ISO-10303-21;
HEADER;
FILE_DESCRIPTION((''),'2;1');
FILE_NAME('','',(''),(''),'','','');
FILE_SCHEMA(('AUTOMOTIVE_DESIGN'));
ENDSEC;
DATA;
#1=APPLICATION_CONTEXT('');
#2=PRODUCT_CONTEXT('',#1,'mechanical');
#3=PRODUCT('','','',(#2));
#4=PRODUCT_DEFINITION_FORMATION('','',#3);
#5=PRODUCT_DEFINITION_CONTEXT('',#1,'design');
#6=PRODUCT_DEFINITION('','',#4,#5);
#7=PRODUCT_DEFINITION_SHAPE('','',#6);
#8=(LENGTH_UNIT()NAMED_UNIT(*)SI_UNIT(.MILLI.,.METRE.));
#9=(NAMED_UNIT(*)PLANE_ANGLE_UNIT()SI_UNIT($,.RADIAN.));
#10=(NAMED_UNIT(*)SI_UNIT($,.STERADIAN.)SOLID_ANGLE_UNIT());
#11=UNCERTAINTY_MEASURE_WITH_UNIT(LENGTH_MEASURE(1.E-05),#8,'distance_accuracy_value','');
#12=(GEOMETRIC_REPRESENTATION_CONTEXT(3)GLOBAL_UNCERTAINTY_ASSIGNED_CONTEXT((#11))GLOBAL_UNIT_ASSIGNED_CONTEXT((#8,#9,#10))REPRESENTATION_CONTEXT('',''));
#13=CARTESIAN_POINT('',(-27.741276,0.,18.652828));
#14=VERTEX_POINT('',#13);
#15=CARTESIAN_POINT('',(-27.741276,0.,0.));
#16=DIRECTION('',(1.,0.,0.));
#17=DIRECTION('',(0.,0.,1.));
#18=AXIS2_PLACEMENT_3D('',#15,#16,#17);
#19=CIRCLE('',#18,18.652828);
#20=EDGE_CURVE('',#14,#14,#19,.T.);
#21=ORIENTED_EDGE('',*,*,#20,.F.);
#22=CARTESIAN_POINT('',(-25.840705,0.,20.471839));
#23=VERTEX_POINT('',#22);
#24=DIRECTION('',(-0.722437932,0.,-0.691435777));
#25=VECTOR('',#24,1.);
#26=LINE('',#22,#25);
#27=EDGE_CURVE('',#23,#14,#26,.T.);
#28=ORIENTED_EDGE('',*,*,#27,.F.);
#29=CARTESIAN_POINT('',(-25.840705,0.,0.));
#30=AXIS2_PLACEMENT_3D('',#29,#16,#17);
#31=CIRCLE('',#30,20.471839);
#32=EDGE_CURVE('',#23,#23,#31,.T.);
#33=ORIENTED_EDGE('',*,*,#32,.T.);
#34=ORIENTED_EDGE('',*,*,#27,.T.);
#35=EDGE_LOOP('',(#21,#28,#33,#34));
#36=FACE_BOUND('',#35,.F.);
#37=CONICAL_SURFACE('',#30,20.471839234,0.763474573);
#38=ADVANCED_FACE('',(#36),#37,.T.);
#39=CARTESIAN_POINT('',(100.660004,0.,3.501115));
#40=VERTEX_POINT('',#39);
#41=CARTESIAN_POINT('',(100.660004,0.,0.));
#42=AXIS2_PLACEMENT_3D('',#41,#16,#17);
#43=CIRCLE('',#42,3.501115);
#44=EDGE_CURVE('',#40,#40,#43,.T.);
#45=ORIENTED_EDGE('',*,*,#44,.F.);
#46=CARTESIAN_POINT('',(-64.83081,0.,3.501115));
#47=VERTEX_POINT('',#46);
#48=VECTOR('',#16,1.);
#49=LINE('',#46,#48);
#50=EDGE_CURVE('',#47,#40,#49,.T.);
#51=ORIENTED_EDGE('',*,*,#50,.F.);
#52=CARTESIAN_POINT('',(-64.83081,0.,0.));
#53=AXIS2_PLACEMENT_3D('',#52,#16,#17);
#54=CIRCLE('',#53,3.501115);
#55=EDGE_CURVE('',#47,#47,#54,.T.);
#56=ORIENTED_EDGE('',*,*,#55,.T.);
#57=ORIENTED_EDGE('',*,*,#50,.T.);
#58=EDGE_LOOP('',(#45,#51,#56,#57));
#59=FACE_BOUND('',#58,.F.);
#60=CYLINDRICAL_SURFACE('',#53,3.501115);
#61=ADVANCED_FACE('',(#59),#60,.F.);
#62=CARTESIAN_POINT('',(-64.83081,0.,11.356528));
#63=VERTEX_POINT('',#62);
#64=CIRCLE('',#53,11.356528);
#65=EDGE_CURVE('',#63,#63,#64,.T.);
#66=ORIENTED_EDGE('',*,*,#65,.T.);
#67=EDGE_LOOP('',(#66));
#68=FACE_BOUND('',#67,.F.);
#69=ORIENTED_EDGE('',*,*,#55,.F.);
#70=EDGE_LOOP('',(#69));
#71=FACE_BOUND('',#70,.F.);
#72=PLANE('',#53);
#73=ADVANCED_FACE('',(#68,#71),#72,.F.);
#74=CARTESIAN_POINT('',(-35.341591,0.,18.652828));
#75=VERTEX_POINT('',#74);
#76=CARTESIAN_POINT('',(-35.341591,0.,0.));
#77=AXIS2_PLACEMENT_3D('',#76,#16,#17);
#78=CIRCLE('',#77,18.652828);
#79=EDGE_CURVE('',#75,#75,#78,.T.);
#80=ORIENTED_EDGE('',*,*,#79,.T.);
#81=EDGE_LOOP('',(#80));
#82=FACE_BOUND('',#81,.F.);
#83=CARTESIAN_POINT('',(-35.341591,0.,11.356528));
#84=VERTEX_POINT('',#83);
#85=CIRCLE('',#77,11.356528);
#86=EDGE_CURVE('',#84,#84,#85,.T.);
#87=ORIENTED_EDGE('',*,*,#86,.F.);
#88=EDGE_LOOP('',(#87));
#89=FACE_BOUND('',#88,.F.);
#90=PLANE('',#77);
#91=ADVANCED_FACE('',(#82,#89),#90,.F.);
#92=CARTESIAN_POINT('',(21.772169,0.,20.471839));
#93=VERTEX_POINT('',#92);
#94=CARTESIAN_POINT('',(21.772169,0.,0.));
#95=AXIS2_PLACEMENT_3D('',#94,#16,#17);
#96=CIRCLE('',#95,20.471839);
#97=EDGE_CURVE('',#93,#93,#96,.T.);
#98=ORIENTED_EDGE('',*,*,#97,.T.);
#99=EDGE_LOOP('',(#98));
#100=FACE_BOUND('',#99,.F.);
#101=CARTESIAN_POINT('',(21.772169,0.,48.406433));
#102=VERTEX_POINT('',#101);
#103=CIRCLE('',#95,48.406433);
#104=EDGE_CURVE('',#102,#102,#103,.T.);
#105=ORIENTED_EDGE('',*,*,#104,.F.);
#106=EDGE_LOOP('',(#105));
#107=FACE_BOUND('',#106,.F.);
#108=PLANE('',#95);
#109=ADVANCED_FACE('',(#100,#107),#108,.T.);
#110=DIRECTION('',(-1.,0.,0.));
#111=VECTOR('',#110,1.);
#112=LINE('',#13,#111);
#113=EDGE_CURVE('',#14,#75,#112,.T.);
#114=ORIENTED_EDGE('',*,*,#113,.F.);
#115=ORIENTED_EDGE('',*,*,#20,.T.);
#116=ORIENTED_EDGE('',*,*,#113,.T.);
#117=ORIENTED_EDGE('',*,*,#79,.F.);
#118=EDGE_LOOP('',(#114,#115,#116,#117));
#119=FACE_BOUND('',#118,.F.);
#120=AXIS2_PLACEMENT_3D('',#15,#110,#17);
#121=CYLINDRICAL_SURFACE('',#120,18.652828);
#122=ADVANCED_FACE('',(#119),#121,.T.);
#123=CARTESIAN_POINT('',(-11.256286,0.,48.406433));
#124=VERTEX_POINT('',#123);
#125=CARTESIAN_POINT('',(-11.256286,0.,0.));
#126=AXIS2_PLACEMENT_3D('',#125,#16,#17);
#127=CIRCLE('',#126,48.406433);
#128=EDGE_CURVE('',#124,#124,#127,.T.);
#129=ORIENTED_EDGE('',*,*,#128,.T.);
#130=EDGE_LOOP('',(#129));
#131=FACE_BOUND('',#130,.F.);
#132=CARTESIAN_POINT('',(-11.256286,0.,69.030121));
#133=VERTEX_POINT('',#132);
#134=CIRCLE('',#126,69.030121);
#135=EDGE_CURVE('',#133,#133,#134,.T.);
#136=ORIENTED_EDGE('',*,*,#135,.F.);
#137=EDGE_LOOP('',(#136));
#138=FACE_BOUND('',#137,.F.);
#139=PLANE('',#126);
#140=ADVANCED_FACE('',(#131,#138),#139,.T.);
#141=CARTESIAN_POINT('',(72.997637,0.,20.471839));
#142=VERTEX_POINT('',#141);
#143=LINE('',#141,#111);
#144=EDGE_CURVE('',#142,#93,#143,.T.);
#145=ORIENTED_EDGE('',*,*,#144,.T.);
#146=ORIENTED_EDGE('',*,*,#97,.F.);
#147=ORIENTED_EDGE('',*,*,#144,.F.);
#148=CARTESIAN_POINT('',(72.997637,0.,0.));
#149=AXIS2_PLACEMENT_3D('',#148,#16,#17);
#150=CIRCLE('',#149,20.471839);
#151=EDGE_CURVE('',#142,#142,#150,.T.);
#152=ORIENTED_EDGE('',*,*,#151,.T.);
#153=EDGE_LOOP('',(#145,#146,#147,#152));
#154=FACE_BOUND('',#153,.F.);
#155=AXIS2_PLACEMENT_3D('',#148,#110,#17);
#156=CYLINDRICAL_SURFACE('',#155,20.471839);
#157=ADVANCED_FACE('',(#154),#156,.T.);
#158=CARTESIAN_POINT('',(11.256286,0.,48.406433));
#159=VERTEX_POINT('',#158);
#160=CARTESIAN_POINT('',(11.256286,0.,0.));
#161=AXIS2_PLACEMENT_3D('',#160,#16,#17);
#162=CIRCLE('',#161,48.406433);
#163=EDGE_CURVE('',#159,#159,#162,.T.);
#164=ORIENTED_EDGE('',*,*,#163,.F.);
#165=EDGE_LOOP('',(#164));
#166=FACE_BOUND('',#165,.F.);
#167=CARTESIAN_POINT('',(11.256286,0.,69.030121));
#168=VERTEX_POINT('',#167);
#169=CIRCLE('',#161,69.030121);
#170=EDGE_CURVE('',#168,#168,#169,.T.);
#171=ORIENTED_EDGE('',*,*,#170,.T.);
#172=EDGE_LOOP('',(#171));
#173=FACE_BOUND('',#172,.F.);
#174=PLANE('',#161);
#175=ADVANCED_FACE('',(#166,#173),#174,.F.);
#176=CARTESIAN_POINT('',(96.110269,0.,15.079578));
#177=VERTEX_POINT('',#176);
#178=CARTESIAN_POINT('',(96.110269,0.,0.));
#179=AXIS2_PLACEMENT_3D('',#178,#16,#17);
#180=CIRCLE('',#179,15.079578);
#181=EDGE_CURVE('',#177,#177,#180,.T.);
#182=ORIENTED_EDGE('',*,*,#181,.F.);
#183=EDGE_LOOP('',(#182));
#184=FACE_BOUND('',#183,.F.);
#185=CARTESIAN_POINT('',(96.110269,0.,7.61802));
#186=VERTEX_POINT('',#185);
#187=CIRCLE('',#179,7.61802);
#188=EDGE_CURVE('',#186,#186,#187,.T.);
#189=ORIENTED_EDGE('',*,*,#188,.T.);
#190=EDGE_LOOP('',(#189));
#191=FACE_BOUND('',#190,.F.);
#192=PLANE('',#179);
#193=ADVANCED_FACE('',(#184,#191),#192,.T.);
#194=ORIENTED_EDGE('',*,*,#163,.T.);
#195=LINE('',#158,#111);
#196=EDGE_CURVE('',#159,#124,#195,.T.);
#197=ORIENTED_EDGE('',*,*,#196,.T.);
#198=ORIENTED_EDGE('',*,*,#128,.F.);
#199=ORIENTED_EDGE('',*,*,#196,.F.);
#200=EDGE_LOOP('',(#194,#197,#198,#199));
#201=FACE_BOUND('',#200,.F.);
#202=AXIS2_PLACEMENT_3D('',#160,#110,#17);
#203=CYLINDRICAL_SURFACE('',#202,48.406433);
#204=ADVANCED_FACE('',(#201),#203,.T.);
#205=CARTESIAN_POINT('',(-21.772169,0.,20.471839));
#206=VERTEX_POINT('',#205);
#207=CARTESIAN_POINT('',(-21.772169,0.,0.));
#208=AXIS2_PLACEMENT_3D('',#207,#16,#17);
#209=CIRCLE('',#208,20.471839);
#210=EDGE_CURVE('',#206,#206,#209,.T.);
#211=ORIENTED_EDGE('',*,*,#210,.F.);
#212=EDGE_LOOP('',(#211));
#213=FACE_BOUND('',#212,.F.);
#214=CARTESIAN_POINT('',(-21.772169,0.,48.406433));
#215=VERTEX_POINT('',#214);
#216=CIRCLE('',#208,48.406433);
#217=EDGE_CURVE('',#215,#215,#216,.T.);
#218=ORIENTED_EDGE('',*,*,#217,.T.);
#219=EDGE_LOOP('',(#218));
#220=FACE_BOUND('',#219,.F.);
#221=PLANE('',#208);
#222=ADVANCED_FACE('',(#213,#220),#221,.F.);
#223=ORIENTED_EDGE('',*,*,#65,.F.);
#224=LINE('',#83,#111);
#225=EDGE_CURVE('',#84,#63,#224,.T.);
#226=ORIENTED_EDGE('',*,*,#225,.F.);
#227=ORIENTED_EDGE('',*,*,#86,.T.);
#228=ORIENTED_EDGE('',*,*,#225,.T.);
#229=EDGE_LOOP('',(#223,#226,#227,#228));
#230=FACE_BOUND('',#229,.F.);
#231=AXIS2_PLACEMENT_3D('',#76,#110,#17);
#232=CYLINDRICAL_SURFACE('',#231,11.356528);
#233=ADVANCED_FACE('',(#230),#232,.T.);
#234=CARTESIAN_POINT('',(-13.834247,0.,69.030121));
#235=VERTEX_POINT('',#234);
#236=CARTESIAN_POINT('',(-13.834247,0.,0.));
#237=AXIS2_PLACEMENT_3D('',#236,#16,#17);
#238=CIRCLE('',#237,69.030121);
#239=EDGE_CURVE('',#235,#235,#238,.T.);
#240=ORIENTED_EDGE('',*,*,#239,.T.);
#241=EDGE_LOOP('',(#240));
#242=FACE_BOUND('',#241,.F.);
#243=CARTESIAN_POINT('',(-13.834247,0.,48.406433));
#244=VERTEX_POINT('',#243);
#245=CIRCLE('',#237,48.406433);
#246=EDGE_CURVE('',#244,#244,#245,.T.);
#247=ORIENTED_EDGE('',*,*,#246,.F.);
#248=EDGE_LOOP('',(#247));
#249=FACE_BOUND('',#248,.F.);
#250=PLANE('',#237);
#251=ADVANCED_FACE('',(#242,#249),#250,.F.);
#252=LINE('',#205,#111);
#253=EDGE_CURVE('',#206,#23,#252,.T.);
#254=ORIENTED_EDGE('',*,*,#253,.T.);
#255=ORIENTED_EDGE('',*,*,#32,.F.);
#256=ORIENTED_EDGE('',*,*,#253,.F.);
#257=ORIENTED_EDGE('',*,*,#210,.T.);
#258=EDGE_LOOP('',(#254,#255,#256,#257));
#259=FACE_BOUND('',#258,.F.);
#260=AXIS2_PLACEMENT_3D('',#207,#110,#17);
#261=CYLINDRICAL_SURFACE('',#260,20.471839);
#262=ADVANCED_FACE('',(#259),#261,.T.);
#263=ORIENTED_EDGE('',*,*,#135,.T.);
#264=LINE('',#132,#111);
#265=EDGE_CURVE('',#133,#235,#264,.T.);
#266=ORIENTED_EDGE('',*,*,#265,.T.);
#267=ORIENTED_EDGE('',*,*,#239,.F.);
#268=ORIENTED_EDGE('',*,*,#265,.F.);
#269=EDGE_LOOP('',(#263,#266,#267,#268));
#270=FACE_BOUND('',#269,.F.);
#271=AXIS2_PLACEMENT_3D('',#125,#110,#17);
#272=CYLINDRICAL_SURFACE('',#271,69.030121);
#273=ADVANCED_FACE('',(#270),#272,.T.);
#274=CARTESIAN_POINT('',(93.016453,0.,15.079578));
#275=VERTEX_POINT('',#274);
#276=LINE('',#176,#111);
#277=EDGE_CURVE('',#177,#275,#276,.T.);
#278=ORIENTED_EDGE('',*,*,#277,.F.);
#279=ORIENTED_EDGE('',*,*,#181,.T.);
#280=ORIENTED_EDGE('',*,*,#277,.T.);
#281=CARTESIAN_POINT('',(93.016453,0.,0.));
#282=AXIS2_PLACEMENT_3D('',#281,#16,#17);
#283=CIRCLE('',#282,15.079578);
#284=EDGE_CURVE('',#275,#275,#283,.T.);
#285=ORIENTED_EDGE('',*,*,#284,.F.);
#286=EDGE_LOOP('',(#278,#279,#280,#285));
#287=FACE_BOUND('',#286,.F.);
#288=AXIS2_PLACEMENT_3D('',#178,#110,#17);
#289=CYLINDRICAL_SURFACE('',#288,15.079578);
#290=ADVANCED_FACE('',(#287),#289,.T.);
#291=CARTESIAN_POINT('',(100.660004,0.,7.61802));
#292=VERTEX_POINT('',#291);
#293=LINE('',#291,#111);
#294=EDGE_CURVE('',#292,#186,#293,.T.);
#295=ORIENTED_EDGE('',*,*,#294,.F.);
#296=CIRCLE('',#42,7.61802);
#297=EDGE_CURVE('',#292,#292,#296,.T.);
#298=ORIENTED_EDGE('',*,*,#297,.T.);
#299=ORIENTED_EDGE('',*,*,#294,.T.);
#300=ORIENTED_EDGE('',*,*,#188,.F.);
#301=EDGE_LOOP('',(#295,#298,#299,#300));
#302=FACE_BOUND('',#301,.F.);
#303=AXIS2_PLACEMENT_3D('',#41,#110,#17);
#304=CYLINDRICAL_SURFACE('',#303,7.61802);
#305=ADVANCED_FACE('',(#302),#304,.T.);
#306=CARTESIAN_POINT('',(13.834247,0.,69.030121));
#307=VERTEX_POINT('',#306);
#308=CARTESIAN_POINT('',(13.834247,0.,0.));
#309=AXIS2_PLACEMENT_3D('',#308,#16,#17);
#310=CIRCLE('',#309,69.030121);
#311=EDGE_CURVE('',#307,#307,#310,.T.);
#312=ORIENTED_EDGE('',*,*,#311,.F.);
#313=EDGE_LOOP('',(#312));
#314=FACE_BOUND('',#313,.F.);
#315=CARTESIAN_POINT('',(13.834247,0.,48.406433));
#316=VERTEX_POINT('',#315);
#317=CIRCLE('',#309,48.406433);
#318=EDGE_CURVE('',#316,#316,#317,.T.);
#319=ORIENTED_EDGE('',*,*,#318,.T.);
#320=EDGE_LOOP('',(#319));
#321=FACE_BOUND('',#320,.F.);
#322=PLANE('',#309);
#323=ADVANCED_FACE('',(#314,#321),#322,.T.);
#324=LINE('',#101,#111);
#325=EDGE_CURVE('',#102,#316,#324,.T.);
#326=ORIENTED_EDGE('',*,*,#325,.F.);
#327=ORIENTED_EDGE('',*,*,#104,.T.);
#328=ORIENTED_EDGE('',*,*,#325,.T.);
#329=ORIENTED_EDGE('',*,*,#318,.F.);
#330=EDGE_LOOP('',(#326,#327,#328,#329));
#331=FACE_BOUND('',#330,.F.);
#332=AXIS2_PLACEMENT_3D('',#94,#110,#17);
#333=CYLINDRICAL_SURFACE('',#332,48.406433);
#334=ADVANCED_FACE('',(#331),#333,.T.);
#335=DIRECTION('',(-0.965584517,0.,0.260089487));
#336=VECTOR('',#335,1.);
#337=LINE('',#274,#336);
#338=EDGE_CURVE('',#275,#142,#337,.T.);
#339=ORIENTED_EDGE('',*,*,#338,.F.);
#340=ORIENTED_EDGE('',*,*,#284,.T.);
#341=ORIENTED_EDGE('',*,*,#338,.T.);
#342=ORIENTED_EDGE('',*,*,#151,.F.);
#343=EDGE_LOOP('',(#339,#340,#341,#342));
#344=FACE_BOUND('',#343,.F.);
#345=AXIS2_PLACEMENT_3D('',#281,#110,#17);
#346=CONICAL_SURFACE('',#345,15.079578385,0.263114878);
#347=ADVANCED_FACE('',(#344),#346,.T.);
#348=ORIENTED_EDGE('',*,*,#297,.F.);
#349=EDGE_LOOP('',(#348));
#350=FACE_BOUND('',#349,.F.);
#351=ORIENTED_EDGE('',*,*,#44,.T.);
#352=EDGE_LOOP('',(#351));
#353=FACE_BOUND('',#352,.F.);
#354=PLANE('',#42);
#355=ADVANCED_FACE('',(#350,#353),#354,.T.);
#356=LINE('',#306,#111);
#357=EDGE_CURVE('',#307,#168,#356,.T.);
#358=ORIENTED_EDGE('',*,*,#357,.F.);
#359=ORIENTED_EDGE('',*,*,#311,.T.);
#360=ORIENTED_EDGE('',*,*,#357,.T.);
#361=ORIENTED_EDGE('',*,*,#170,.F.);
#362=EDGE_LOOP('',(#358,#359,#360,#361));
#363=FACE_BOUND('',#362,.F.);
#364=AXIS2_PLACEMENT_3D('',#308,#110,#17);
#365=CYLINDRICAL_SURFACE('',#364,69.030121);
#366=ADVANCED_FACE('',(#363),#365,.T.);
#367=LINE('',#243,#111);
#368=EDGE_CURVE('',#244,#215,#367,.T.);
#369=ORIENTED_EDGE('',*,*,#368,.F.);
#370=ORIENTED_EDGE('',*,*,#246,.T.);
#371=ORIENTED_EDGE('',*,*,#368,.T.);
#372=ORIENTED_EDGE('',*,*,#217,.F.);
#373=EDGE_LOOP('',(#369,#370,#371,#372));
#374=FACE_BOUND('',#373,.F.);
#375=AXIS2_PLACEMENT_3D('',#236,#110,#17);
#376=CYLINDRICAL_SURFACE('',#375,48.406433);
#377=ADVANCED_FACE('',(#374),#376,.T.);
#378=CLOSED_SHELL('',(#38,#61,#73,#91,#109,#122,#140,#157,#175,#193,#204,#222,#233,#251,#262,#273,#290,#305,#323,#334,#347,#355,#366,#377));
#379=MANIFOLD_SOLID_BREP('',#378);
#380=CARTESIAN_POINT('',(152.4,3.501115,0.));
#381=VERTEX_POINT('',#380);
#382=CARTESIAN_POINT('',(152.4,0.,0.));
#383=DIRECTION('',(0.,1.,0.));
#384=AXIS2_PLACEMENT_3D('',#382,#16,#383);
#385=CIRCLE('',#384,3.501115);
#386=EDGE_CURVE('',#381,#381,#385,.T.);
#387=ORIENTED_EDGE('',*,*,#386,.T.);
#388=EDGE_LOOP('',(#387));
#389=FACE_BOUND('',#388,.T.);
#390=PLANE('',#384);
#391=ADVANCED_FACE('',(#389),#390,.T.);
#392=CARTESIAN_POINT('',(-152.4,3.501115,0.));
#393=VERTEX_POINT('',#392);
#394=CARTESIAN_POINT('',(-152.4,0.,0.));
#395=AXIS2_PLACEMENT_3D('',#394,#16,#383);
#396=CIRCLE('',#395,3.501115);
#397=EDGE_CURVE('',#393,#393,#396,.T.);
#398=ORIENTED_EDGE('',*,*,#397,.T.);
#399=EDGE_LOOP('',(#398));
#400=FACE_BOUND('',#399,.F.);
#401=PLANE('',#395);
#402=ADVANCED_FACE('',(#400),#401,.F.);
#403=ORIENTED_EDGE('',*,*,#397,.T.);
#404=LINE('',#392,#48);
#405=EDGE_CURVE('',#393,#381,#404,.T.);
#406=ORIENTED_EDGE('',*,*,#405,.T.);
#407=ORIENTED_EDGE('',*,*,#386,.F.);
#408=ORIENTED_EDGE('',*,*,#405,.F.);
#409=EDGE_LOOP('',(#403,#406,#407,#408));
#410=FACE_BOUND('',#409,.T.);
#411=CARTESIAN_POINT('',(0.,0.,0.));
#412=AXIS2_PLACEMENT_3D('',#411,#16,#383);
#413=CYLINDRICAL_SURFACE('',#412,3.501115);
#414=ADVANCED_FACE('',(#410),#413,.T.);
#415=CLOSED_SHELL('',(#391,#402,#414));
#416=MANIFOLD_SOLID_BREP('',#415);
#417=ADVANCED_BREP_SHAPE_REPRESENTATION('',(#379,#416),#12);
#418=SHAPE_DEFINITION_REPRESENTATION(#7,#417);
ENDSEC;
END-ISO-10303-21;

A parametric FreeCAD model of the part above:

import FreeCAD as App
import Part
import Sketcher
from FreeCAD import Vector
Q = App.Units.Quantity


def add_polygon(sketch, points):
    """Adds a closed chain of lines whose ends are joined by coincident constraints."""
    first, n = sketch.GeometryCount, len(points)
    for a, b in zip(points, points[1:] + points[:1]):
        sketch.addGeometry(Part.LineSegment(App.Vector(*a, 0), App.Vector(*b, 0)), False)
    for i in range(n):
        sketch.addConstraint(Sketcher.Constraint("Coincident", first + i, 2, first + (i + 1) % n, 1))

doc = App.newDocument("Part")
params = doc.addObject("Spreadsheet::Sheet", "Params")
for row, (alias, value) in enumerate([
    ("pad1_length", "12 in"),
    ("revolution_angle", "360 deg"),
], start=1):
    params.set(f"A{row}", alias)
    params.set(f"B{row}", "=" + value)
    params.setAlias(f"B{row}", alias)

body = doc.addObject("PartDesign::Body", "Body")

# Sketch on YZ plane
sketch1 = body.newObject("Sketcher::SketchObject", "Sketch")
sketch1.AttachmentSupport = (doc.getObject("YZ_Plane"), [""])
sketch1.MapMode = "FlatFace"
sketch1.addGeometry(Part.Circle(Vector(0, 0, 0), Vector(0, 0, 1), 3.5), False)
sketch1.addConstraint([
    Sketcher.Constraint("Coincident", 0, 3, -1, 1),
    Sketcher.Constraint("Diameter", 0, Q("7.002231 mm")),
])
pad1 = body.newObject("PartDesign::Pad", "Pad")
pad1.Profile = sketch1
pad1.setExpression("Length", "Params.pad1_length")
pad1.Midplane = True
body2 = doc.addObject("PartDesign::Body", "Body001")

# Sketch on XZ plane
sketch2 = body2.newObject("Sketcher::SketchObject", "Sketch001")
sketch2.AttachmentSupport = (doc.getObject("XZ_Plane001"), [""])
sketch2.MapMode = "FlatFace"
add_polygon(sketch2, [(-64.8, 11.4), (-64.8, 3.5), (100.7, 3.5), (100.7, 7.6), (96.1, 7.6), (96.1, 15.1), (93, 15.1), (73, 20.5), (21.8, 20.5), (21.8, 48.4), (13.8, 48.4), (13.8, 69), (11.3, 69), (11.3, 48.4), (-11.3, 48.4), (-11.3, 69), (-13.8, 69), (-13.8, 48.4), (-21.8, 48.4), (-21.8, 20.5), (-25.8, 20.5), (-27.7, 18.7), (-35.3, 18.7), (-35.3, 11.4)])  # lines 0-23
sketch2.addConstraint([
    Sketcher.Constraint("Vertical", 0),
    Sketcher.Constraint("Horizontal", 1),
    Sketcher.Constraint("Vertical", 2),
    Sketcher.Constraint("Horizontal", 3),
    Sketcher.Constraint("Vertical", 4),
    Sketcher.Constraint("Horizontal", 5),
    Sketcher.Constraint("Horizontal", 7),
    Sketcher.Constraint("Vertical", 8),
    Sketcher.Constraint("Horizontal", 9),
    Sketcher.Constraint("Vertical", 10),
    Sketcher.Constraint("Horizontal", 11),
    Sketcher.Constraint("Vertical", 12),
    Sketcher.Constraint("Horizontal", 13),
    Sketcher.Constraint("Vertical", 14),
    Sketcher.Constraint("Horizontal", 15),
    Sketcher.Constraint("Vertical", 16),
    Sketcher.Constraint("Horizontal", 17),
    Sketcher.Constraint("Vertical", 18),
    Sketcher.Constraint("Horizontal", 19),
    Sketcher.Constraint("Horizontal", 21),
    Sketcher.Constraint("Vertical", 22),
    Sketcher.Constraint("Horizontal", 23),
    Sketcher.Constraint("Symmetric", 11, 2, 14, 2, -2),
    Sketcher.Constraint("Symmetric", 9, 2, 16, 2, -2),
    Sketcher.Constraint("Symmetric", 7, 2, 18, 2, -2),
    Sketcher.Constraint("Horizontal", 9, 2, 12, 2),
    Sketcher.Constraint("DistanceY", 22, 2, 22, 1, Q("7.2963 mm")),
    Sketcher.Constraint("DistanceX", 7, 2, 7, 1, Q("51.225469 mm")),
    Sketcher.Constraint("DistanceX", 9, 2, 9, 1, Q("7.937921 mm")),
    Sketcher.Constraint("DistanceX", 11, 2, 11, 1, Q("2.577961 mm")),
    Sketcher.Constraint("DistanceX", 13, 2, 13, 1, Q("22.512572 mm")),
    Sketcher.Constraint("DistanceX", 23, 2, 23, 1, Q("29.489219 mm")),
    Sketcher.Constraint("DistanceY", 4, 1, 4, 2, Q("7.461559 mm")),
    Sketcher.Constraint("DistanceX", 7, 2, 4, 2, Q("74.338101 mm")),
    Sketcher.Constraint("Distance", 6, Q("20.732329 mm")),
    Sketcher.Constraint("DistanceX", 1, 1, 1, 2, Q("165.490814 mm")),
    Sketcher.Constraint("DistanceX", 3, 2, 3, 1, Q("4.549734 mm")),
    Sketcher.Constraint("DistanceX", 5, 2, 5, 1, Q("3.093816 mm")),
    Sketcher.Constraint("DistanceX", 19, 2, 19, 1, Q("4.068537 mm")),
    Sketcher.Constraint("DistanceX", 21, 2, 21, 1, Q("7.600315 mm")),
    Sketcher.Constraint("DistanceY", 0, 2, 0, 1, Q("7.855412 mm")),
    Sketcher.Constraint("DistanceY", 2, 1, 2, 2, Q("4.116904 mm")),
    Sketcher.Constraint("DistanceY", 8, 1, 8, 2, Q("27.934594 mm")),
    Sketcher.Constraint("DistanceY", 10, 1, 10, 2, Q("20.623688 mm")),
    Sketcher.Constraint("DistanceY", -1, 1, 2, 2, Q("7.61802 mm")),
])
revolution = body2.newObject("PartDesign::Revolution", "Revolution")
revolution.Profile = sketch2
revolution.ReferenceAxis = (sketch2, ["H_Axis"])
revolution.setExpression("Angle", "Params.revolution_angle")

doc.recompute()
